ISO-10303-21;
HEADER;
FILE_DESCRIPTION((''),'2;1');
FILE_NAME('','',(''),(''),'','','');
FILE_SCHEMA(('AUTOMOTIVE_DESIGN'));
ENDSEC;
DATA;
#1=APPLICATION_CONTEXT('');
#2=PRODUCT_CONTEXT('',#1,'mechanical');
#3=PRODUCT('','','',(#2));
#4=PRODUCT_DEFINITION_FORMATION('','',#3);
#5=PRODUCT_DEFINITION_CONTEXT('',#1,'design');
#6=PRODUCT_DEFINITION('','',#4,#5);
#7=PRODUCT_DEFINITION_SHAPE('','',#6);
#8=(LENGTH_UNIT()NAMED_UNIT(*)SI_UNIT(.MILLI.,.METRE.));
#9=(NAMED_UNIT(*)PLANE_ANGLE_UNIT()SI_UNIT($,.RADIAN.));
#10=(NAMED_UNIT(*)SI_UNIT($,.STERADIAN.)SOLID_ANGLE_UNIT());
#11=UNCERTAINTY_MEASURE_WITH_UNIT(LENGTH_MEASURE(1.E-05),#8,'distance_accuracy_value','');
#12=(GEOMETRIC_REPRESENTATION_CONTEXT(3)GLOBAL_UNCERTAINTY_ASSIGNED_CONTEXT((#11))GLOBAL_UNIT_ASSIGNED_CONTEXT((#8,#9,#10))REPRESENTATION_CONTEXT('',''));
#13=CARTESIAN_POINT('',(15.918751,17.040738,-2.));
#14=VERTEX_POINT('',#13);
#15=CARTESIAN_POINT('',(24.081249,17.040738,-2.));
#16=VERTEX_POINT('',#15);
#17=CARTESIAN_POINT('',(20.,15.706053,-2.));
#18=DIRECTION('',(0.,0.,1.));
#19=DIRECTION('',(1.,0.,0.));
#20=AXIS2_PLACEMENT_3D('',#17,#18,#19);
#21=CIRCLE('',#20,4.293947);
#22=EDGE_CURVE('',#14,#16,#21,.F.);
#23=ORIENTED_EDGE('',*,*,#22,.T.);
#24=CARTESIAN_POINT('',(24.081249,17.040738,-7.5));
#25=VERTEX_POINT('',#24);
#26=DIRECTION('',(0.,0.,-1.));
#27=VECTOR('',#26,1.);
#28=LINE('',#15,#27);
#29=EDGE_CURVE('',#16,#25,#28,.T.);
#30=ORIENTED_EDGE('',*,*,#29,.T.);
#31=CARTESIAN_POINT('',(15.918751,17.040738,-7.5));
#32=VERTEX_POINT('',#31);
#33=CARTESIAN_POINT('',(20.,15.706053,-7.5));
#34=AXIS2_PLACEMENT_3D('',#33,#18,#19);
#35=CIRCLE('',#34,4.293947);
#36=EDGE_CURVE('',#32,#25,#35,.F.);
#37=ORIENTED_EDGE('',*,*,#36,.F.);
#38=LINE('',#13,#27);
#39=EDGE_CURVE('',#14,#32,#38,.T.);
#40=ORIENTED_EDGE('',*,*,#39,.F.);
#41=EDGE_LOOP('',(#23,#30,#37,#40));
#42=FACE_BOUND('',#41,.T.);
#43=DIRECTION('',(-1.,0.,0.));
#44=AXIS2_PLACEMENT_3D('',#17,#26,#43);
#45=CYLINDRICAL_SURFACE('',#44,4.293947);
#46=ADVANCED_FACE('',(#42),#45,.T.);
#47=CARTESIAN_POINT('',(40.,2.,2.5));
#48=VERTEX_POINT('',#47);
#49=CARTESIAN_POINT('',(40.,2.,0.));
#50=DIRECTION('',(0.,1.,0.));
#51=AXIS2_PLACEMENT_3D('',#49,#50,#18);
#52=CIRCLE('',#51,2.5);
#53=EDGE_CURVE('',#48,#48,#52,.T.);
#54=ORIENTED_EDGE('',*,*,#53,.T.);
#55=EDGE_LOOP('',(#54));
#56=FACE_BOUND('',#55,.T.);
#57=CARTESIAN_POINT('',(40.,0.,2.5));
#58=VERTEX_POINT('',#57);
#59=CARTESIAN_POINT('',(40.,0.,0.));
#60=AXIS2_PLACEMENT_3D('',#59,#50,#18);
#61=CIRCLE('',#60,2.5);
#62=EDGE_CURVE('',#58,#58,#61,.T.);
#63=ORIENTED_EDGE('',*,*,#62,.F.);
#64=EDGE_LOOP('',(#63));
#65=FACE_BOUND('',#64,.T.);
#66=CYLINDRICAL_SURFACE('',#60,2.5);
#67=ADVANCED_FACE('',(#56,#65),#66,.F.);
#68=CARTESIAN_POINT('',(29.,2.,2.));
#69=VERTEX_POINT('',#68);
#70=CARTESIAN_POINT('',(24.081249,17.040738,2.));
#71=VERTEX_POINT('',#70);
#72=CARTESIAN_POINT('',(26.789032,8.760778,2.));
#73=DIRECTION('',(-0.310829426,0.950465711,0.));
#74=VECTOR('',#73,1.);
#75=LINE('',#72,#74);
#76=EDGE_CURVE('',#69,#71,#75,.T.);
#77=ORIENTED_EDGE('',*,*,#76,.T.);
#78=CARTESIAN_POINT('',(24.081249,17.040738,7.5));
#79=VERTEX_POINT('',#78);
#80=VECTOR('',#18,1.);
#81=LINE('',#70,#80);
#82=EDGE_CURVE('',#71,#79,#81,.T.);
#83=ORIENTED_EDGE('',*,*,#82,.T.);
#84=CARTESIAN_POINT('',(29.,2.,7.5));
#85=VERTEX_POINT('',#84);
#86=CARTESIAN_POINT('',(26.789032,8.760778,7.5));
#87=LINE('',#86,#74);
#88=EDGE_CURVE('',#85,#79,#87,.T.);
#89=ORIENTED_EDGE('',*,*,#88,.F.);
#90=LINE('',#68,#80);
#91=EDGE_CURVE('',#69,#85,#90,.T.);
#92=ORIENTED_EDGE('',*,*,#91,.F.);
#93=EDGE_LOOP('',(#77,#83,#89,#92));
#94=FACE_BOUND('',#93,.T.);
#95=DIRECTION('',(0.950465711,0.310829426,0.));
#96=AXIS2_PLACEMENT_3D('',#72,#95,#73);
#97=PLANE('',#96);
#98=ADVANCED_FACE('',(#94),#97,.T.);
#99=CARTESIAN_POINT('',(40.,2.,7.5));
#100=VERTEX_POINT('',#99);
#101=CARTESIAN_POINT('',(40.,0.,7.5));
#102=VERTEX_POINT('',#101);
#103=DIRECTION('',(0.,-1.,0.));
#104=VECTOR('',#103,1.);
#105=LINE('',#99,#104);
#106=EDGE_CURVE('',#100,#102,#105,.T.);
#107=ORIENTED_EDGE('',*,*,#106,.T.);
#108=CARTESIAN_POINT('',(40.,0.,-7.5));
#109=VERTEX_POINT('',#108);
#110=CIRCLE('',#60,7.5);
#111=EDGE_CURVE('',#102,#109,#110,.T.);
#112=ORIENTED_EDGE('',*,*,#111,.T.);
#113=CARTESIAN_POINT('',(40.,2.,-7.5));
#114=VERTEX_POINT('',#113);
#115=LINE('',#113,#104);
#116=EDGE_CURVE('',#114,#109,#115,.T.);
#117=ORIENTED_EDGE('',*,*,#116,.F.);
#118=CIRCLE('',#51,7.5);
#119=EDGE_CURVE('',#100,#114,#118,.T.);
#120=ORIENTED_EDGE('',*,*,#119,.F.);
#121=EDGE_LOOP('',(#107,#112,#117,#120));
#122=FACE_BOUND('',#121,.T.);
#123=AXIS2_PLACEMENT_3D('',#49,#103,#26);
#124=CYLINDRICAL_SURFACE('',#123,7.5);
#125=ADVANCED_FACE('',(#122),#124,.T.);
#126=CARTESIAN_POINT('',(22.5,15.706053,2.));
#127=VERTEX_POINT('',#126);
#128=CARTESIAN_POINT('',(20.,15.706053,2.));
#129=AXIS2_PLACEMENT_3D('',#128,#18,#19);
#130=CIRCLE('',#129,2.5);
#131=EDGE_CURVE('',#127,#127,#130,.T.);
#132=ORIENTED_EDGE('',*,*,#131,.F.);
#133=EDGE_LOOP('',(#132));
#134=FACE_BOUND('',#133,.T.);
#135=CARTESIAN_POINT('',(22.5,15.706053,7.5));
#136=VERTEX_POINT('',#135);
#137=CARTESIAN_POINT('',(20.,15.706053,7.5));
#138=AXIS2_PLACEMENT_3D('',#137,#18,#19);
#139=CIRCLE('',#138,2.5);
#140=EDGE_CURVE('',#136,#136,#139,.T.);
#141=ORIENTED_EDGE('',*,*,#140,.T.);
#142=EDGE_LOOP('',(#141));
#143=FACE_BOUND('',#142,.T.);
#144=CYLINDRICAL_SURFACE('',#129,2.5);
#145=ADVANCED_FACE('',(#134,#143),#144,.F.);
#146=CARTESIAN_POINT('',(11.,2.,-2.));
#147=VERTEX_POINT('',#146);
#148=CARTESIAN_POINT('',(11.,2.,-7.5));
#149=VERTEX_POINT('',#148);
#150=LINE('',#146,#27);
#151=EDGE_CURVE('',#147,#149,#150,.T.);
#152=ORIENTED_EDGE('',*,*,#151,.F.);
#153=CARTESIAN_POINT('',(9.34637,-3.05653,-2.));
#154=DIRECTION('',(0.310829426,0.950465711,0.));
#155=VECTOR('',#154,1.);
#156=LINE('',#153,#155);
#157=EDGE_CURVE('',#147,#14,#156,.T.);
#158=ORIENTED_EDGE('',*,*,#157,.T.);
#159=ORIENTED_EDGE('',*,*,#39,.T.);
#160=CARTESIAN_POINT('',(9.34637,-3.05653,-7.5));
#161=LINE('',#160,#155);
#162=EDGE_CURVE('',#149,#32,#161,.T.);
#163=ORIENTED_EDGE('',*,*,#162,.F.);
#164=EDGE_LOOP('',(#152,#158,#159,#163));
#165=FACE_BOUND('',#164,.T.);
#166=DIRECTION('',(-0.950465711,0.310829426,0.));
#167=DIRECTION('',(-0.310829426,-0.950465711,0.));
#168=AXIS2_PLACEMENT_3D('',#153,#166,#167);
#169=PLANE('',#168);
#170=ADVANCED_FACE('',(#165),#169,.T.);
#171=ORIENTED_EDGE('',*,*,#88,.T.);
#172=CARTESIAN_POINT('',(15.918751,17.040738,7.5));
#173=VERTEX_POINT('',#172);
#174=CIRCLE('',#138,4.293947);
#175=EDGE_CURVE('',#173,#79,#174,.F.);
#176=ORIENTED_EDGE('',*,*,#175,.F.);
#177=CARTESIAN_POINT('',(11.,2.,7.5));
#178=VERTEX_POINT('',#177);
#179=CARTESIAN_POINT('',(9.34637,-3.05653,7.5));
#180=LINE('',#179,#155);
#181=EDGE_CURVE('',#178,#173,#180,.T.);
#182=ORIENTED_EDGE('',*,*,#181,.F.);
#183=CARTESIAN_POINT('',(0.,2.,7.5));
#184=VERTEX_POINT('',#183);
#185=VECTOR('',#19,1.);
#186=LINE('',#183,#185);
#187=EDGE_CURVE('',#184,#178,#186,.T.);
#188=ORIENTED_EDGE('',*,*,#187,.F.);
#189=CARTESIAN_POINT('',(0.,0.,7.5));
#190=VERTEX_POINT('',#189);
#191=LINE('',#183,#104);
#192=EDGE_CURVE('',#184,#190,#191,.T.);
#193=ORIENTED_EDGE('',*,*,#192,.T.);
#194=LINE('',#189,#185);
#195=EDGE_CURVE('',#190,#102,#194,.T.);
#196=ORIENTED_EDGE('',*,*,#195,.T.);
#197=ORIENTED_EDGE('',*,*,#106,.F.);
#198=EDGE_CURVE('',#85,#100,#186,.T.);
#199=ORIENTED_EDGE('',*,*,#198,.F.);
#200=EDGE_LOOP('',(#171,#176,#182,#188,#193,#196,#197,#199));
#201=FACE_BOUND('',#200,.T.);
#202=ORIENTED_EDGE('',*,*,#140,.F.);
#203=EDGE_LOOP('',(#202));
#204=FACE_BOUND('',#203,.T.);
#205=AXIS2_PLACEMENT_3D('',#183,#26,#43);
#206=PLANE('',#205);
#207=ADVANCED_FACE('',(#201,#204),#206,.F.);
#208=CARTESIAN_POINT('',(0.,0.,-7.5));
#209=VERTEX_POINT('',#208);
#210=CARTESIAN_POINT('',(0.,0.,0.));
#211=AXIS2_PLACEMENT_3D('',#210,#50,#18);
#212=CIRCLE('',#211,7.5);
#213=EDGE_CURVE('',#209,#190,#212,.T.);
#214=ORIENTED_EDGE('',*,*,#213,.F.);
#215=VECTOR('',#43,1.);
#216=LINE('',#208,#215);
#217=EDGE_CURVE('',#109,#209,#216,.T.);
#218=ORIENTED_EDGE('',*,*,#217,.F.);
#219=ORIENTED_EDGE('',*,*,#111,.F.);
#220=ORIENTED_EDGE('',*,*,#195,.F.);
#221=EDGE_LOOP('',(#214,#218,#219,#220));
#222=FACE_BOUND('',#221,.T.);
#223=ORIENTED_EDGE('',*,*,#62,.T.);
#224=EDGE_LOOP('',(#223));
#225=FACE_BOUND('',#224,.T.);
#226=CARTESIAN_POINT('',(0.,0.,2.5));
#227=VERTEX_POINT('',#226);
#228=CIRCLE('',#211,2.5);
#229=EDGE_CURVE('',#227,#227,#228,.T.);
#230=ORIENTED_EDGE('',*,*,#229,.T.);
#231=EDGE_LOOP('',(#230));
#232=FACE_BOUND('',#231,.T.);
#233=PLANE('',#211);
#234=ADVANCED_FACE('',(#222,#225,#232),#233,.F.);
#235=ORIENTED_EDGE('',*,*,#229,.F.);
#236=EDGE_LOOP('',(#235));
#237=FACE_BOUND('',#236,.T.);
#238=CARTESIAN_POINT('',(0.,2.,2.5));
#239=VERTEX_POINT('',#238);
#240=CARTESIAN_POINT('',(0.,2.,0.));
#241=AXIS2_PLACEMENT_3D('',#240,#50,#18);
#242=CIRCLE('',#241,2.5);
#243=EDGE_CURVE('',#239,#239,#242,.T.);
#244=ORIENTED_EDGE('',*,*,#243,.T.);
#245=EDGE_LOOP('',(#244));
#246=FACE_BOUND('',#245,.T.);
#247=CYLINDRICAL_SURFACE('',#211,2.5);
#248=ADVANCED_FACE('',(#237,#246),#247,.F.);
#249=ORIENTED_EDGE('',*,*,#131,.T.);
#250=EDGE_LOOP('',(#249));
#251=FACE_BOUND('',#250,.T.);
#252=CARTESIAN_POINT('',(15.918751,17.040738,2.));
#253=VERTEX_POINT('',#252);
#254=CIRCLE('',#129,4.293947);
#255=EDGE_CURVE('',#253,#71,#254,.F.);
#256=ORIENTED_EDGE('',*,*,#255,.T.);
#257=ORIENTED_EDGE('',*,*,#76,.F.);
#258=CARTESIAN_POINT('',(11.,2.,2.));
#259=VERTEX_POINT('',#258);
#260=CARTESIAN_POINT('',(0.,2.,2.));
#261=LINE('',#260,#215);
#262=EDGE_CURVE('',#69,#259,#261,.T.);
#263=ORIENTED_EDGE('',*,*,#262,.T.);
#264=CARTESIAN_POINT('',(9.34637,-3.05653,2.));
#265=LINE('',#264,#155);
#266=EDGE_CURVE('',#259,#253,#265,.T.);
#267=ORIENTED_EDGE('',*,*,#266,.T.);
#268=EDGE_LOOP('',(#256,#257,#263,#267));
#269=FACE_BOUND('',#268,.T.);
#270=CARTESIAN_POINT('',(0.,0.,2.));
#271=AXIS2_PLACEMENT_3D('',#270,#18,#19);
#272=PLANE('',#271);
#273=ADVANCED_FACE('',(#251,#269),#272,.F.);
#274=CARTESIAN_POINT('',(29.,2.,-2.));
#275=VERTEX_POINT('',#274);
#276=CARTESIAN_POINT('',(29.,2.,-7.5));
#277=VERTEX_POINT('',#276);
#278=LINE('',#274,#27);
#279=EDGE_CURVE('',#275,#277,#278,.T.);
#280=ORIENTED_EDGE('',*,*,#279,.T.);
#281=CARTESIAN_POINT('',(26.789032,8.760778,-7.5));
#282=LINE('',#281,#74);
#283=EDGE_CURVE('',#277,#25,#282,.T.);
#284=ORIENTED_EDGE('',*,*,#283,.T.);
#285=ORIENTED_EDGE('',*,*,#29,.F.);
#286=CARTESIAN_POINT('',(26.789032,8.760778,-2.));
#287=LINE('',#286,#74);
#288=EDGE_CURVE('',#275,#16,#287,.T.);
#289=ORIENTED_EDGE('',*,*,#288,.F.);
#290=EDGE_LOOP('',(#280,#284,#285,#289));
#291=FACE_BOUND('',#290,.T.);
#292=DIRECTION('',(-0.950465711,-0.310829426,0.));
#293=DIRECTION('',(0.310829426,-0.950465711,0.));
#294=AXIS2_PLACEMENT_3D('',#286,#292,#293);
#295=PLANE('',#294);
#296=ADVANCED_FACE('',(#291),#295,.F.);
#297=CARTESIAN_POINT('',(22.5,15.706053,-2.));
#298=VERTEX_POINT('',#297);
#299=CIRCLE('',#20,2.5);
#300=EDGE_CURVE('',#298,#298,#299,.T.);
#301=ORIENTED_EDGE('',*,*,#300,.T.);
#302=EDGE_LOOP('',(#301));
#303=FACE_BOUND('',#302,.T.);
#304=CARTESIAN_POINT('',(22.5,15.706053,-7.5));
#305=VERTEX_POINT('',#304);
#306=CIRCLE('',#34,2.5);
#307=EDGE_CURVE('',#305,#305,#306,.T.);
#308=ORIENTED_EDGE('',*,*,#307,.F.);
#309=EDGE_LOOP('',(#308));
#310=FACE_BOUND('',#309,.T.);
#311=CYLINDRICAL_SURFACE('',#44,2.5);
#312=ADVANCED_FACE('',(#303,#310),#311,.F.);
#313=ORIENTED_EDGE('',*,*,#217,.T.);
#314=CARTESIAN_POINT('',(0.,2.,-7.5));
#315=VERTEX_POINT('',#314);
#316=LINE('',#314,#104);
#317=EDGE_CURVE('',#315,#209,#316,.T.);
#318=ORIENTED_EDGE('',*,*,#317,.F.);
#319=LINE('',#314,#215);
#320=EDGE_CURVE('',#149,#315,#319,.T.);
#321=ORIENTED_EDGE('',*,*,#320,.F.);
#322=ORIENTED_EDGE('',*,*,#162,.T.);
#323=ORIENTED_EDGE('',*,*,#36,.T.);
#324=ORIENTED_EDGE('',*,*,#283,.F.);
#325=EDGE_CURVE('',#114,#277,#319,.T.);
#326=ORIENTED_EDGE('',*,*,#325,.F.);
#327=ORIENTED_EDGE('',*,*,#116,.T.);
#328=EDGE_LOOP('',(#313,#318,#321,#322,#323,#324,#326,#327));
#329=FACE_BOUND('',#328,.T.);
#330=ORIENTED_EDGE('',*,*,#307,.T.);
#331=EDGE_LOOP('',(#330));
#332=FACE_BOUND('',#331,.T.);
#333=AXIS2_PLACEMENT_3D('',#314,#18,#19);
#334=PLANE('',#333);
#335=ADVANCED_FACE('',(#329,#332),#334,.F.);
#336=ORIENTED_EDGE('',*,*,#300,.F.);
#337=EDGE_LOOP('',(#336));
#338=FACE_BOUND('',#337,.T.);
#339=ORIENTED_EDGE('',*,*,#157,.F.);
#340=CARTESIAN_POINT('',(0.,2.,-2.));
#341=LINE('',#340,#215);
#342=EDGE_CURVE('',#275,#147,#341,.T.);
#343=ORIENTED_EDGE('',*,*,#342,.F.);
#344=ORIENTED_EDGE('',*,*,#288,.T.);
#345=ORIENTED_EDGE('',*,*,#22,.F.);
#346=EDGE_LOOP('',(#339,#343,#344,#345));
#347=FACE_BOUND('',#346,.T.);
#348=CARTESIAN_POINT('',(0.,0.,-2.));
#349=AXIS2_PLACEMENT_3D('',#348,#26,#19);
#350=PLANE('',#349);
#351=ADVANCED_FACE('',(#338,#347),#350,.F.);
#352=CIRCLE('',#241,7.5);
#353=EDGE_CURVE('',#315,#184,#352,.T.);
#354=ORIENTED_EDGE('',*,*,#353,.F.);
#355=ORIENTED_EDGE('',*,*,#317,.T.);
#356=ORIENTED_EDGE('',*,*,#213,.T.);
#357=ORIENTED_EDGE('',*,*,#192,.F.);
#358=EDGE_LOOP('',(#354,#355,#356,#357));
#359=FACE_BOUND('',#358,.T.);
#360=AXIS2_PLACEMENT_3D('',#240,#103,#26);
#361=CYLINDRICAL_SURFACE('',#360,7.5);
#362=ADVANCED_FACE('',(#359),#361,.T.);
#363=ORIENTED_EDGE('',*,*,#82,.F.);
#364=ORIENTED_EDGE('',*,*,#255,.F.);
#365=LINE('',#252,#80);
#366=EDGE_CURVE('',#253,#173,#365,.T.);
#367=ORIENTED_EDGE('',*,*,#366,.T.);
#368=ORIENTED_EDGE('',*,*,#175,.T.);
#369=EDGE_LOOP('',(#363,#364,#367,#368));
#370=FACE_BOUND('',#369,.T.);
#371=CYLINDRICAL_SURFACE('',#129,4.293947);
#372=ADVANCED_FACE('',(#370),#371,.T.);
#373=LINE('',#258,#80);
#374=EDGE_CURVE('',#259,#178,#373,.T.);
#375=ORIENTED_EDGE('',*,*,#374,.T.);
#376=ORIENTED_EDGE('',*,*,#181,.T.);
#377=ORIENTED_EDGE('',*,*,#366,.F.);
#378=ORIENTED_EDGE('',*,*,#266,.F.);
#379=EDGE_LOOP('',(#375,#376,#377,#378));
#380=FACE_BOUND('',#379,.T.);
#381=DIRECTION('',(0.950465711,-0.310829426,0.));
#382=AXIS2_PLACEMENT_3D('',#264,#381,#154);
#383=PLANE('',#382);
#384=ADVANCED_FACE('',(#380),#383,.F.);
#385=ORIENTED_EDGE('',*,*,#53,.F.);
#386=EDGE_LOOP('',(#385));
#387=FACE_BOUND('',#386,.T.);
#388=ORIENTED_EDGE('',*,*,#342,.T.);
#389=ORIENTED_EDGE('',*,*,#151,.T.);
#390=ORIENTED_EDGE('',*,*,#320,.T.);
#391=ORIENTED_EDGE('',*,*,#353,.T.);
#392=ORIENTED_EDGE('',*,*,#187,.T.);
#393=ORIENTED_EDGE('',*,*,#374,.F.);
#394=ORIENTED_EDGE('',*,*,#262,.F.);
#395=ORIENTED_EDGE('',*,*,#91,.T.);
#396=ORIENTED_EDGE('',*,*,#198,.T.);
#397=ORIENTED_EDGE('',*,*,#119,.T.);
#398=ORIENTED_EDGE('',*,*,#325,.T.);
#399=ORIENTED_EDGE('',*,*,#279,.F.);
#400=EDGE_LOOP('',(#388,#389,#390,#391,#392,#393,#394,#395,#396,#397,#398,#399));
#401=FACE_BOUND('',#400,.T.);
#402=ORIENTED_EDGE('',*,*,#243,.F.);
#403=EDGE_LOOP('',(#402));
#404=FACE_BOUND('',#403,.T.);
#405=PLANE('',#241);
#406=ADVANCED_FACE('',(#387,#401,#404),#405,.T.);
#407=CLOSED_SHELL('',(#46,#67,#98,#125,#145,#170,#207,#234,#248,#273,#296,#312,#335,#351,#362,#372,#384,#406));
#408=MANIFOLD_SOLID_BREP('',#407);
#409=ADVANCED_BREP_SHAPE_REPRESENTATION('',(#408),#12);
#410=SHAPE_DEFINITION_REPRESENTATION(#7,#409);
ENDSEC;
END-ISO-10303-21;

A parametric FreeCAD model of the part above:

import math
import FreeCAD as App
import Part
import Sketcher
Q = App.Units.Quantity

doc = App.newDocument("Part")
body = doc.addObject("PartDesign::Body", "Body")

sketch1 = doc.addObject("Sketcher::SketchObject", "Sketch")
body.addObject(sketch1)
sketch1.AttachmentSupport = (doc.XZ_Plane, [""])
sketch1.MapMode = "FlatFace"
sketch1.addGeometry([
    Part.LineSegment(App.Vector(40, -7.5, 0), App.Vector(0, -7.5, 0)),
    Part.ArcOfCircle(Part.Circle(App.Vector(0, 0, 0), App.Vector(0, 0, 1), 7.5), math.radians(90), math.radians(270)),
    Part.LineSegment(App.Vector(0, 7.5, 0), App.Vector(40, 7.5, 0)),
    Part.ArcOfCircle(Part.Circle(App.Vector(40, 0, 0), App.Vector(0, 0, 1), 7.5), math.radians(-90), math.radians(90)),
], False)
sketch1.addConstraint([
    Sketcher.Constraint("Tangent", 0, 2, 1, 2),
    Sketcher.Constraint("Tangent", 1, 1, 2, 1),
    Sketcher.Constraint("Tangent", 2, 2, 3, 2),
    Sketcher.Constraint("Tangent", 3, 1, 0, 1),
    Sketcher.Constraint("Horizontal", 0),
    Sketcher.Constraint("Horizontal", 2),
    Sketcher.Constraint("Coincident", 1, 3, -1, 1),
    Sketcher.Constraint("Radius", 1, Q("7.5 mm")),
    Sketcher.Constraint("DistanceX", 0, 2, 0, 1, Q("40 mm")),
])
pad1 = doc.addObject("PartDesign::Pad", "Pad")
body.addObject(pad1)
pad1.Profile = sketch1
pad1.Length = 2
pad1.Reversed = True

sketch2 = doc.addObject("Sketcher::SketchObject", "Sketch001")
body.addObject(sketch2)
sketch2.AttachmentSupport = (doc.XY_Plane, [""])
sketch2.MapMode = "FlatFace"
sketch2.AttachmentOffset = App.Placement(App.Vector(0, 0, 7.5), App.Rotation())
sketch2.addGeometry([
    Part.LineSegment(App.Vector(15.918751, 17.040738, 0), App.Vector(11, 2, 0)),
    Part.LineSegment(App.Vector(11, 2, 0), App.Vector(29, 2, 0)),
    Part.LineSegment(App.Vector(29, 2, 0), App.Vector(24.081249, 17.040738, 0)),
    Part.ArcOfCircle(Part.Circle(App.Vector(20, 15.706053, 0), App.Vector(0, 0, 1), 4.293947), math.radians(18.109223), math.radians(161.890777)),
    Part.Circle(App.Vector(20, 15.706053, 0), App.Vector(0, 0, 1), 2.5),
], False)
sketch2.addConstraint([
    Sketcher.Constraint("Coincident", 0, 2, 1, 1),
    Sketcher.Constraint("Coincident", 1, 2, 2, 1),
    Sketcher.Constraint("Tangent", 2, 2, 3, 1),
    Sketcher.Constraint("Tangent", 3, 2, 0, 1),
    Sketcher.Constraint("Horizontal", 1),
    Sketcher.Constraint("Coincident", 4, 3, 3, 3),
    Sketcher.Constraint("Horizontal", 2, 2, 3, 2),
    Sketcher.Constraint("Diameter", 4, Q("5 mm")),
    Sketcher.Constraint("DistanceX", 1, 1, 1, 2, Q("18 mm")),
    Sketcher.Constraint("DistanceX", -1, 1, 3, 3, Q("20 mm")),
    Sketcher.Constraint("DistanceY", -1, 1, 0, 2, Q("2 mm")),
    Sketcher.Constraint("Radius", 3, Q("4.293947 mm")),
    Sketcher.Constraint("Distance", 0, Q("15.824599 mm")),
])
pad2 = doc.addObject("PartDesign::Pad", "Pad001")
body.addObject(pad2)
pad2.Profile = sketch2
pad2.Length = 5.5
pad2.Reversed = True
doc.recompute()

mirrored = doc.addObject("PartDesign::Mirrored", "Mirrored")
body.addObject(mirrored)
mirrored.Originals = [pad2]
mirrored.MirrorPlane = (doc.XY_Plane, [""])
body.Tip = mirrored

sketch3 = doc.addObject("Sketcher::SketchObject", "Sketch002")
body.addObject(sketch3)
sketch3.AttachmentSupport = (doc.XZ_Plane, [""])
sketch3.MapMode = "FlatFace"
sketch3.AttachmentOffset = App.Placement(App.Vector(0, 0, -2), App.Rotation())
sketch3.addGeometry([
    Part.Circle(App.Vector(0, 0, 0), App.Vector(0, 0, 1), 2.5),
    Part.Circle(App.Vector(40, 0, 0), App.Vector(0, 0, 1), 2.5),
], False)
sketch3.addConstraint([
    Sketcher.Constraint("Coincident", 0, 3, -1, 1),
    Sketcher.Constraint("Equal", 0, 1),
    Sketcher.Constraint("PointOnObject", 1, 3, -1),
    Sketcher.Constraint("Diameter", 0, Q("5 mm")),
    Sketcher.Constraint("DistanceX", -1, 1, 1, 3, Q("40 mm")),
])
pocket1 = doc.addObject("PartDesign::Pocket", "Pocket")
body.addObject(pocket1)
pocket1.Profile = sketch3
pocket1.Length = 2
pocket1.Reversed = True

doc.recompute()
